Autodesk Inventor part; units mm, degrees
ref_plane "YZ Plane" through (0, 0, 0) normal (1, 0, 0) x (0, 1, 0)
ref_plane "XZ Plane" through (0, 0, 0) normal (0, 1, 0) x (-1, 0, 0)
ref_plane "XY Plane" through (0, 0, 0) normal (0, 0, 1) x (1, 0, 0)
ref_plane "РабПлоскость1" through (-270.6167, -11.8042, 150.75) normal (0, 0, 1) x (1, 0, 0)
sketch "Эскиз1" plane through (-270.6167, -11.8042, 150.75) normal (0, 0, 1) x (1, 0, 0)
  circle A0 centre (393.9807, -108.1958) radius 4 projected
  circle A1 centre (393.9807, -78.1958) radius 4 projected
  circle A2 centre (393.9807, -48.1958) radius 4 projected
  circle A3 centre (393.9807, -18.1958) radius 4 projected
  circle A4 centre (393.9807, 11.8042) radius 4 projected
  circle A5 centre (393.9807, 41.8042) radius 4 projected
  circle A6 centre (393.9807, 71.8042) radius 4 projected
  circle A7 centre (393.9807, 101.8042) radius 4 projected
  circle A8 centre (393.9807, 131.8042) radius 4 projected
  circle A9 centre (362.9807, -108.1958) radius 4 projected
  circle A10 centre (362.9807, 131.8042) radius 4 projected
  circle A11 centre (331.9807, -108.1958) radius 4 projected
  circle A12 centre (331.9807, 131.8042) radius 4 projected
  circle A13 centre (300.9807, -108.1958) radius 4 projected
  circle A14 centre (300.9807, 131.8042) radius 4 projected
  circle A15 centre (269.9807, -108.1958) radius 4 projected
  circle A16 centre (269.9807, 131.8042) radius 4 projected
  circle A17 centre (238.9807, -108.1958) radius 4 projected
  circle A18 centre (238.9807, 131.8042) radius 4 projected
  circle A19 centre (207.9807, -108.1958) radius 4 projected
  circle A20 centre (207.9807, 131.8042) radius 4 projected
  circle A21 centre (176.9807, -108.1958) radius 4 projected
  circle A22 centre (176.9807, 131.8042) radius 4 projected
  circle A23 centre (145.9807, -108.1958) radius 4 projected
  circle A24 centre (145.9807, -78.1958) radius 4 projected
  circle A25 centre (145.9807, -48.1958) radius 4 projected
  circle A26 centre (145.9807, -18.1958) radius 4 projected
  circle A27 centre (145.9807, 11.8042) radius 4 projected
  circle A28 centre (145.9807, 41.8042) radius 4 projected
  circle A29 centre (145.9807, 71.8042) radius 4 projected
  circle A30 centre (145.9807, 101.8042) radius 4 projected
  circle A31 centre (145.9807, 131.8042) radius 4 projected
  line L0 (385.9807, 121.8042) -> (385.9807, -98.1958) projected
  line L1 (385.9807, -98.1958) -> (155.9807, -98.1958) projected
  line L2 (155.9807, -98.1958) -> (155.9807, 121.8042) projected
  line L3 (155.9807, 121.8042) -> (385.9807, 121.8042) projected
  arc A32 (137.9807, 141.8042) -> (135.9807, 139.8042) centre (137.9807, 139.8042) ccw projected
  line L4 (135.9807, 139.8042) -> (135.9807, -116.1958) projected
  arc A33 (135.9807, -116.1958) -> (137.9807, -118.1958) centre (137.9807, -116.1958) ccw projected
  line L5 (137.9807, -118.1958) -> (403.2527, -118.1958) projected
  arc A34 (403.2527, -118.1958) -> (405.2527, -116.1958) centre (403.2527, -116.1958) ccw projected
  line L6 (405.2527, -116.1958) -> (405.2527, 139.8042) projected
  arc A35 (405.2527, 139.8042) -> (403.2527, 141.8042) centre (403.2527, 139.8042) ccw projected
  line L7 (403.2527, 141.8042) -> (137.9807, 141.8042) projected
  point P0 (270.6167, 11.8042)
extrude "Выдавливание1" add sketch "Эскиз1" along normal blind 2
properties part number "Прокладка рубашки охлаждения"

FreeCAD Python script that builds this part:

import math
import FreeCAD as App
import Part
import Sketcher
from FreeCAD import Vector
Q = App.Units.Quantity


def add_polygon(sketch, points):
    """Adds a closed chain of lines whose ends are joined by coincident constraints."""
    first, n = sketch.GeometryCount, len(points)
    for a, b in zip(points, points[1:] + points[:1]):
        sketch.addGeometry(Part.LineSegment(App.Vector(*a, 0), App.Vector(*b, 0)), False)
    for i in range(n):
        sketch.addConstraint(Sketcher.Constraint("Coincident", first + i, 2, first + (i + 1) % n, 1))

doc = App.newDocument("Part")
params = doc.addObject("Spreadsheet::Sheet", "Params")
for row, (alias, value) in enumerate([
    ("sketch1_diameter", "8 mm"),
    ("sketch1_radius", "2 mm"),
    ("sketch1_width", "230 mm"),
    ("sketch1_height", "256 mm"),
    ("sketch1_height2", "220 mm"),
    ("pad1_length", "2 mm"),
], start=1):
    params.set(f"A{row}", alias)
    params.set(f"B{row}", "=" + value)
    params.setAlias(f"B{row}", alias)

body = doc.addObject("PartDesign::Body", "Body")

sketch1 = body.newObject("Sketcher::SketchObject", "Sketch")
sketch1.AttachmentSupport = (doc.getObject("XY_Plane"), [""])
sketch1.MapMode = "FlatFace"
sketch1.AttachmentOffset = App.Placement(Vector(0, 0, 150.75), App.Rotation())
sketch1.addGeometry(Part.LineSegment(Vector(132.6, 130, 0), Vector(-132.6, 130, 0)), False)
sketch1.addGeometry(Part.ArcOfCircle(Part.Circle(Vector(-132.6, 128, 0), Vector(0, 0, 1), 2), math.radians(90), math.radians(180)), False)
sketch1.addGeometry(Part.LineSegment(Vector(-134.6, 128, 0), Vector(-134.6, -128, 0)), False)
sketch1.addGeometry(Part.ArcOfCircle(Part.Circle(Vector(-132.6, -128, 0), Vector(0, 0, 1), 2), math.radians(180), math.radians(270)), False)
sketch1.addGeometry(Part.LineSegment(Vector(-132.6, -130, 0), Vector(132.6, -130, 0)), False)
sketch1.addGeometry(Part.ArcOfCircle(Part.Circle(Vector(132.6, -128, 0), Vector(0, 0, 1), 2), math.radians(-90), math.radians(0)), False)
sketch1.addGeometry(Part.LineSegment(Vector(134.6, -128, 0), Vector(134.6, 128, 0)), False)
sketch1.addGeometry(Part.ArcOfCircle(Part.Circle(Vector(132.6, 128, 0), Vector(0, 0, 1), 2), math.radians(0), math.radians(90)), False)
sketch1.addGeometry(Part.Circle(Vector(-124.6, -120, 0), Vector(0, 0, 1), 4), False)
sketch1.addGeometry(Part.Circle(Vector(-93.6, -120, 0), Vector(0, 0, 1), 4), False)
sketch1.addGeometry(Part.Circle(Vector(-124.6, -90, 0), Vector(0, 0, 1), 4), False)
sketch1.addGeometry(Part.Circle(Vector(-62.6, -120, 0), Vector(0, 0, 1), 4), False)
sketch1.addGeometry(Part.Circle(Vector(-31.6, -120, 0), Vector(0, 0, 1), 4), False)
sketch1.addGeometry(Part.Circle(Vector(-0.6, -120, 0), Vector(0, 0, 1), 4), False)
sketch1.addGeometry(Part.Circle(Vector(-124.6, -60, 0), Vector(0, 0, 1), 4), False)
sketch1.addGeometry(Part.Circle(Vector(-124.6, -30, 0), Vector(0, 0, 1), 4), False)
sketch1.addGeometry(Part.Circle(Vector(30.4, -120, 0), Vector(0, 0, 1), 4), False)
sketch1.addGeometry(Part.Circle(Vector(61.4, -120, 0), Vector(0, 0, 1), 4), False)
sketch1.addGeometry(Part.Circle(Vector(92.4, -120, 0), Vector(0, 0, 1), 4), False)
sketch1.addGeometry(Part.Circle(Vector(123.4, -120, 0), Vector(0, 0, 1), 4), False)
sketch1.addGeometry(Part.Circle(Vector(123.4, -90, 0), Vector(0, 0, 1), 4), False)
sketch1.addGeometry(Part.Circle(Vector(123.4, -60, 0), Vector(0, 0, 1), 4), False)
sketch1.addGeometry(Part.Circle(Vector(123.4, -30, 0), Vector(0, 0, 1), 4), False)
sketch1.addGeometry(Part.Circle(Vector(-124.6, 0, 0), Vector(0, 0, 1), 4), False)
sketch1.addGeometry(Part.Circle(Vector(-124.6, 30, 0), Vector(0, 0, 1), 4), False)
sketch1.addGeometry(Part.Circle(Vector(-124.6, 60, 0), Vector(0, 0, 1), 4), False)
sketch1.addGeometry(Part.Circle(Vector(-124.6, 90, 0), Vector(0, 0, 1), 4), False)
sketch1.addGeometry(Part.Circle(Vector(-124.6, 120, 0), Vector(0, 0, 1), 4), False)
sketch1.addGeometry(Part.Circle(Vector(-93.6, 120, 0), Vector(0, 0, 1), 4), False)
sketch1.addGeometry(Part.Circle(Vector(-62.6, 120, 0), Vector(0, 0, 1), 4), False)
sketch1.addGeometry(Part.Circle(Vector(-31.6, 120, 0), Vector(0, 0, 1), 4), False)
sketch1.addGeometry(Part.Circle(Vector(-0.6, 120, 0), Vector(0, 0, 1), 4), False)
add_polygon(sketch1, [(-114.6, 110), (115.4, 110), (115.4, -110), (-114.6, -110)])
sketch1.addGeometry(Part.Circle(Vector(123.4, 0, 0), Vector(0, 0, 1), 4), False)
sketch1.addGeometry(Part.Circle(Vector(123.4, 30, 0), Vector(0, 0, 1), 4), False)
sketch1.addGeometry(Part.Circle(Vector(123.4, 60, 0), Vector(0, 0, 1), 4), False)
sketch1.addGeometry(Part.Circle(Vector(30.4, 120, 0), Vector(0, 0, 1), 4), False)
sketch1.addGeometry(Part.Circle(Vector(61.4, 120, 0), Vector(0, 0, 1), 4), False)
sketch1.addGeometry(Part.Circle(Vector(123.4, 90, 0), Vector(0, 0, 1), 4), False)
sketch1.addGeometry(Part.Circle(Vector(92.4, 120, 0), Vector(0, 0, 1), 4), False)
sketch1.addGeometry(Part.Circle(Vector(123.4, 120, 0), Vector(0, 0, 1), 4), False)
sketch1.addConstraint([
    Sketcher.Constraint("Tangent", 0, 2, 1, 1),
    Sketcher.Constraint("Tangent", 1, 2, 2, 1),
    Sketcher.Constraint("Tangent", 2, 2, 3, 1),
    Sketcher.Constraint("Tangent", 3, 2, 4, 1),
    Sketcher.Constraint("Tangent", 4, 2, 5, 1),
    Sketcher.Constraint("Tangent", 5, 2, 6, 1),
    Sketcher.Constraint("Tangent", 6, 2, 7, 1),
    Sketcher.Constraint("Tangent", 7, 2, 0, 1),
    Sketcher.Constraint("Horizontal", 0),
    Sketcher.Constraint("Vertical", 2),
    Sketcher.Constraint("Horizontal", 4),
    Sketcher.Constraint("Vertical", 6),
    Sketcher.Constraint("Horizontal", 32),
    Sketcher.Constraint("Vertical", 33),
    Sketcher.Constraint("Horizontal", 34),
    Sketcher.Constraint("Vertical", 35),
    Sketcher.Constraint("Equal", 1, 3),
    Sketcher.Constraint("Equal", 3, 5),
    Sketcher.Constraint("Equal", 5, 7),
    Sketcher.Constraint("Equal", 8, 9),
    Sketcher.Constraint("Equal", 9, 10),
    Sketcher.Constraint("Equal", 10, 11),
    Sketcher.Constraint("Equal", 11, 12),
    Sketcher.Constraint("Equal", 12, 13),
    Sketcher.Constraint("Equal", 13, 14),
    Sketcher.Constraint("Equal", 14, 15),
    Sketcher.Constraint("Equal", 15, 16),
    Sketcher.Constraint("Equal", 16, 17),
    Sketcher.Constraint("Equal", 17, 18),
    Sketcher.Constraint("Equal", 18, 19),
    Sketcher.Constraint("Equal", 19, 20),
    Sketcher.Constraint("Equal", 20, 21),
    Sketcher.Constraint("Equal", 21, 22),
    Sketcher.Constraint("Equal", 22, 23),
    Sketcher.Constraint("Equal", 23, 24),
    Sketcher.Constraint("Equal", 24, 25),
    Sketcher.Constraint("Equal", 25, 26),
    Sketcher.Constraint("Equal", 26, 27),
    Sketcher.Constraint("Equal", 27, 28),
    Sketcher.Constraint("Equal", 28, 29),
    Sketcher.Constraint("Equal", 29, 30),
    Sketcher.Constraint("Equal", 30, 31),
    Sketcher.Constraint("Equal", 31, 36),
    Sketcher.Constraint("Equal", 36, 37),
    Sketcher.Constraint("Equal", 37, 38),
    Sketcher.Constraint("Equal", 38, 39),
    Sketcher.Constraint("Equal", 39, 40),
    Sketcher.Constraint("Equal", 40, 41),
    Sketcher.Constraint("Equal", 41, 42),
    Sketcher.Constraint("Equal", 42, 43),
    Sketcher.Constraint("Symmetric", 1, 3, 5, 3, -1, 1),
    Sketcher.Constraint("Symmetric", 15, 3, 24, 3, -1),
    Sketcher.Constraint("Symmetric", 14, 3, 25, 3, -1),
    Sketcher.Constraint("Symmetric", 10, 3, 26, 3, -1),
    Sketcher.Constraint("Symmetric", 8, 3, 27, 3, -1),
    Sketcher.Constraint("Symmetric", 9, 3, 28, 3, -1),
    Sketcher.Constraint("Symmetric", 11, 3, 29, 3, -1),
    Sketcher.Constraint("Symmetric", 12, 3, 30, 3, -1),
    Sketcher.Constraint("Symmetric", 13, 3, 31, 3, -1),
    Sketcher.Constraint("Symmetric", 22, 3, 37, 3, -1),
    Sketcher.Constraint("Symmetric", 21, 3, 38, 3, -1),
    Sketcher.Constraint("Symmetric", 16, 3, 39, 3, -1),
    Sketcher.Constraint("Symmetric", 17, 3, 40, 3, -1),
    Sketcher.Constraint("Symmetric", 20, 3, 41, 3, -1),
    Sketcher.Constraint("Symmetric", 18, 3, 42, 3, -1),
    Sketcher.Constraint("Symmetric", 19, 3, 43, 3, -1),
    Sketcher.Constraint("PointOnObject", 23, 3, -1),
    Sketcher.Constraint("PointOnObject", 36, 3, -1),
    Sketcher.Constraint("Horizontal", 8, 3, 9, 3),
    Sketcher.Constraint("Horizontal", 9, 3, 11, 3),
    Sketcher.Constraint("Horizontal", 11, 3, 12, 3),
    Sketcher.Constraint("Horizontal", 12, 3, 13, 3),
    Sketcher.Constraint("Horizontal", 13, 3, 16, 3),
    Sketcher.Constraint("Horizontal", 16, 3, 17, 3),
    Sketcher.Constraint("Horizontal", 17, 3, 18, 3),
    Sketcher.Constraint("Horizontal", 18, 3, 19, 3),
    Sketcher.Constraint("Horizontal", 10, 3, 20, 3),
    Sketcher.Constraint("Horizontal", 14, 3, 21, 3),
    Sketcher.Constraint("Horizontal", 15, 3, 22, 3),
    Sketcher.Constraint("Vertical", 8, 3, 10, 3),
    Sketcher.Constraint("Vertical", 10, 3, 14, 3),
    Sketcher.Constraint("Vertical", 14, 3, 15, 3),
    Sketcher.Constraint("Vertical", 19, 3, 20, 3),
    Sketcher.Constraint("Vertical", 20, 3, 21, 3),
    Sketcher.Constraint("Vertical", 21, 3, 22, 3),
    Sketcher.Constraint("Vertical", 15, 3, 23, 3),
    Sketcher.Constraint("Vertical", 22, 3, 36, 3),
    Sketcher.Constraint("Diameter", 8, Q("8 mm")),
    Sketcher.Constraint("Radius", 1, Q("2 mm")),
    Sketcher.Constraint("DistanceX", 32, 1, 32, 2, Q("230 mm")),
    Sketcher.Constraint("DistanceY", 2, 2, 2, 1, Q("256 mm")),
    Sketcher.Constraint("DistanceY", 33, 2, 33, 1, Q("220 mm")),
    Sketcher.Constraint("DistanceY", 8, 3, -1, 1, Q("120 mm")),
    Sketcher.Constraint("DistanceY", 10, 3, -1, 1, Q("90 mm")),
    Sketcher.Constraint("DistanceY", 14, 3, -1, 1, Q("60 mm")),
    Sketcher.Constraint("DistanceY", 15, 3, -1, 1, Q("30 mm")),
    Sketcher.Constraint("DistanceY", -1, 1, 32, 2, Q("110 mm")),
    Sketcher.Constraint("DistanceX", 3, 3, 8, 3, Q("8 mm")),
    Sketcher.Constraint("DistanceX", 8, 3, 9, 3, Q("31 mm")),
    Sketcher.Constraint("DistanceX", 9, 3, 11, 3, Q("31 mm")),
    Sketcher.Constraint("DistanceX", 11, 3, 12, 3, Q("31 mm")),
    Sketcher.Constraint("DistanceX", 12, 3, 13, 3, Q("31 mm")),
    Sketcher.Constraint("DistanceX", 13, 3, 16, 3, Q("31 mm")),
    Sketcher.Constraint("DistanceX", 16, 3, 17, 3, Q("31 mm")),
    Sketcher.Constraint("DistanceX", 17, 3, 18, 3, Q("31 mm")),
    Sketcher.Constraint("DistanceX", 18, 3, 19, 3, Q("31 mm")),
    Sketcher.Constraint("DistanceX", 32, 2, 43, 3, Q("8 mm")),
    Sketcher.Constraint("DistanceX", 0, 2, 0, 1, Q("265.272 mm")),
])
sketch1.setExpression("Constraints[91]", "Params.sketch1_diameter")
sketch1.setExpression("Constraints[92]", "Params.sketch1_radius")
sketch1.setExpression("Constraints[93]", "Params.sketch1_width")
sketch1.setExpression("Constraints[94]", "Params.sketch1_height")
sketch1.setExpression("Constraints[95]", "Params.sketch1_height2")
pad1 = body.newObject("PartDesign::Pad", "Pad")
pad1.Profile = sketch1
pad1.setExpression("Length", "Params.pad1_length")

doc.recompute()
